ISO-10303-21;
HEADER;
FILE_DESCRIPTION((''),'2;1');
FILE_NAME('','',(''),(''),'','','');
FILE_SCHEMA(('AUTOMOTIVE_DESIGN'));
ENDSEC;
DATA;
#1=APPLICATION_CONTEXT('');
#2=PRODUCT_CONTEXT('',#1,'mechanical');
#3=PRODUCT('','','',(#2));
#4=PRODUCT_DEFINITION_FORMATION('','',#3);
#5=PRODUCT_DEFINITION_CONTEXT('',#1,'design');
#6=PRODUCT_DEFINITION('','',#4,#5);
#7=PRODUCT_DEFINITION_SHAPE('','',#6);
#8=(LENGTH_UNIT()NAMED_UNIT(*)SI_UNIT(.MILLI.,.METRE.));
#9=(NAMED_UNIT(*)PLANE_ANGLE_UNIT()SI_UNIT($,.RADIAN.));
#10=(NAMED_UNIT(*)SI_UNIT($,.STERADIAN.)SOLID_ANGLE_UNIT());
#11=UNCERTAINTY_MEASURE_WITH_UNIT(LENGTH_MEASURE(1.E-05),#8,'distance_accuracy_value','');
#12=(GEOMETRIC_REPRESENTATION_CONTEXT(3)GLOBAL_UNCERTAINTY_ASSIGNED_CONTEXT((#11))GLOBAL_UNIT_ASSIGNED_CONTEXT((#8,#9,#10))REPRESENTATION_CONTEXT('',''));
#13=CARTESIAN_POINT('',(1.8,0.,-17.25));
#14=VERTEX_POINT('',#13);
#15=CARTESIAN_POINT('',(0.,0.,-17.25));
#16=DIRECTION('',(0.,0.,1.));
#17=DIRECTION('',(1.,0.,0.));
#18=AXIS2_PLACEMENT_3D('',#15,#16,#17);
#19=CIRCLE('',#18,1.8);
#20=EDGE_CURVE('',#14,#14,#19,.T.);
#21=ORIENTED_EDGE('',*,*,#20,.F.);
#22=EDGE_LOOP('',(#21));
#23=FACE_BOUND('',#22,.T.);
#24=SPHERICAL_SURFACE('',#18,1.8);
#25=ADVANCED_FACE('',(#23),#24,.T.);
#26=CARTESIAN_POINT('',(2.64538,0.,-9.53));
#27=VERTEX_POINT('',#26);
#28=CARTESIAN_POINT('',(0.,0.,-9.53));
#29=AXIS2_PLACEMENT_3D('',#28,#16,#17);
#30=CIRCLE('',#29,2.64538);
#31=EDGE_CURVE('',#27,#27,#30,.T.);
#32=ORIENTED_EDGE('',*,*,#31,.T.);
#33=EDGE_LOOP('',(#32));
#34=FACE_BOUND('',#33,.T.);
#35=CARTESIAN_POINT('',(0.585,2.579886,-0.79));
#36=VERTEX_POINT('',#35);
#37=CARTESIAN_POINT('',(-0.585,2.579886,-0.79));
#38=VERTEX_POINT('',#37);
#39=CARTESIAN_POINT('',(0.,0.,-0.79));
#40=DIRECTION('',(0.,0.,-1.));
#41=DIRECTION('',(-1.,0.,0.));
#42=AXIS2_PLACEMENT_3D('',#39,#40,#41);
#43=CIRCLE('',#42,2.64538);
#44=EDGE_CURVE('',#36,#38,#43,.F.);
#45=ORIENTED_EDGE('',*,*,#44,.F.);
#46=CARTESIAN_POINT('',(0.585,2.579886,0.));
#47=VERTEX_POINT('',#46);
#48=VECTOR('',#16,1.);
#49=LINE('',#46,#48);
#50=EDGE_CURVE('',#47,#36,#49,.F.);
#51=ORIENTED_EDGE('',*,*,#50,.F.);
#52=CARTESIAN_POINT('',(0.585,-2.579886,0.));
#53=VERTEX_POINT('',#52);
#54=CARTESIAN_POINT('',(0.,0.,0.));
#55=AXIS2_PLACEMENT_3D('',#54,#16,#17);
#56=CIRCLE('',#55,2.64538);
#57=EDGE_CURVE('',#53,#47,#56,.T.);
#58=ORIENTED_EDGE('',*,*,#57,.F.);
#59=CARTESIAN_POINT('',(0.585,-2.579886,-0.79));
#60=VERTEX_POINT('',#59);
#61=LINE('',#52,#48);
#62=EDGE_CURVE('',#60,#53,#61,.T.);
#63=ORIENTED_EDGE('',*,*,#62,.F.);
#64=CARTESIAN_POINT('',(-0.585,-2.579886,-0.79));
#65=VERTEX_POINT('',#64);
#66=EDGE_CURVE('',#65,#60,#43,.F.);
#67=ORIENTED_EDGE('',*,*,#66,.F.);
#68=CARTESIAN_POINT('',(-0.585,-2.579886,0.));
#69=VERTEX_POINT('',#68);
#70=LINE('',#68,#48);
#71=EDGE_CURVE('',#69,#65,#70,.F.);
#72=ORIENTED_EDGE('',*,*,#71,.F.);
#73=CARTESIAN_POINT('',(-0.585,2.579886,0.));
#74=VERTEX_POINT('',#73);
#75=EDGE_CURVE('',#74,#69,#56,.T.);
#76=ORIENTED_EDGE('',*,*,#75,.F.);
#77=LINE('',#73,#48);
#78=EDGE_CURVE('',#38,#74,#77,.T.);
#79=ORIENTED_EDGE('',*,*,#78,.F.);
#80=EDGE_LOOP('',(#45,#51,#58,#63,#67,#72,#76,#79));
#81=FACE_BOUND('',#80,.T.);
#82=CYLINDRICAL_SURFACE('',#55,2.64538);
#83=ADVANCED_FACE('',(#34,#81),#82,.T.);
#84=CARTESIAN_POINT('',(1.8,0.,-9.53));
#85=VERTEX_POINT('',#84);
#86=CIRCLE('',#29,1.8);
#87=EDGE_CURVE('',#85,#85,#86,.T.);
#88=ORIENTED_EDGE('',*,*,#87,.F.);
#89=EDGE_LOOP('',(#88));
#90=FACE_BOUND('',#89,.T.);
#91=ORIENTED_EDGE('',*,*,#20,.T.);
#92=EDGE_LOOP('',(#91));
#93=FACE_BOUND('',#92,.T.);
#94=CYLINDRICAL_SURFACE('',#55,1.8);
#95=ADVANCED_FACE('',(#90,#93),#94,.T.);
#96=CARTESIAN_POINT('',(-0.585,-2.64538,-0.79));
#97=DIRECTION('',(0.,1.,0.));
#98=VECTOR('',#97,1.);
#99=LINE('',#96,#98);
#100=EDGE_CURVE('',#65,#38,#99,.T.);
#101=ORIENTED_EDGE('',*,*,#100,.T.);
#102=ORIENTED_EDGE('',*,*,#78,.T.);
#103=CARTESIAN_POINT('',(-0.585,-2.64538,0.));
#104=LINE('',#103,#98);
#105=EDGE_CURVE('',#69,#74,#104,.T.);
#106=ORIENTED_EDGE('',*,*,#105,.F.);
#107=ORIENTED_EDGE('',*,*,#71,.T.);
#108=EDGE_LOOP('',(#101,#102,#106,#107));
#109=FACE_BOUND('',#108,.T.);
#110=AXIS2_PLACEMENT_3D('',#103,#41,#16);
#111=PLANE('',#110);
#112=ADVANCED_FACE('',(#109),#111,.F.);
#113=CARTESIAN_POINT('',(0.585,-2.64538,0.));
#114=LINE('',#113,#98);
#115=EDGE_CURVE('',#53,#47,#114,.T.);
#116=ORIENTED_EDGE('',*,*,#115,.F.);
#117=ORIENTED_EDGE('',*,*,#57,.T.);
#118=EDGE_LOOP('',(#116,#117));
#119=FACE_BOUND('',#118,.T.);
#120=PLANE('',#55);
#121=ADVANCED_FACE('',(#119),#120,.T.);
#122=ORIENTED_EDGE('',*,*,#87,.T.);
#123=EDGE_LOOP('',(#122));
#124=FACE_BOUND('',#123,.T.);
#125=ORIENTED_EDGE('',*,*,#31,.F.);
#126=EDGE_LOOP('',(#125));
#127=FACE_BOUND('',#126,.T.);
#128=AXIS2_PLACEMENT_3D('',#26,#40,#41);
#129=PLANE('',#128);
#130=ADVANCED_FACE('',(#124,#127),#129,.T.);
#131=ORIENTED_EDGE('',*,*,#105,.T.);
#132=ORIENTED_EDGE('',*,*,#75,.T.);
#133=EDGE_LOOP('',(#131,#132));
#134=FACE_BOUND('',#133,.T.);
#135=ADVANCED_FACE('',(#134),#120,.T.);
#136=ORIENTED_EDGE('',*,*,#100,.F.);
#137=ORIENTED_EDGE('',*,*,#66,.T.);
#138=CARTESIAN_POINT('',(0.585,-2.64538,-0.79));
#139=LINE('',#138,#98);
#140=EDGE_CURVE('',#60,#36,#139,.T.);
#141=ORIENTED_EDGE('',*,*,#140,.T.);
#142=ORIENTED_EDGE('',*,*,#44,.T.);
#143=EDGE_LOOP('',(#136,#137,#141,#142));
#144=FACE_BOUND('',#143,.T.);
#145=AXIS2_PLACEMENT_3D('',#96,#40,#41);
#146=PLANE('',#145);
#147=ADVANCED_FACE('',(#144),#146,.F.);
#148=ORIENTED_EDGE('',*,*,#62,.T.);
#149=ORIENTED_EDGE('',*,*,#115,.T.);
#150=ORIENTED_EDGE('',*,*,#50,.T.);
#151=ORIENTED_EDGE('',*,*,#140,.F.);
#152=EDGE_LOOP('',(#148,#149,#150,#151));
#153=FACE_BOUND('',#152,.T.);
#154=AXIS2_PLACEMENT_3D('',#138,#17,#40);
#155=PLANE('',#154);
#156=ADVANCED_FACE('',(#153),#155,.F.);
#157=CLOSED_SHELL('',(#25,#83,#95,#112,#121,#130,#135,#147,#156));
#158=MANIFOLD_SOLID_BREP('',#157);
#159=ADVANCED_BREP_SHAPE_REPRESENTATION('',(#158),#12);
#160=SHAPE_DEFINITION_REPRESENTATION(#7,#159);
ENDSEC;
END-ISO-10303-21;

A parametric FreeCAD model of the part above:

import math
import FreeCAD as App
import Part
import Sketcher
Q = App.Units.Quantity

doc = App.newDocument("Part")
params = doc.addObject("Spreadsheet::Sheet", "Params")
for row, (alias, value) in enumerate([
    ("sketch1_radius", "1.8 mm"),
    ("sketch1_height", "9.53 mm"),
    ("sketch1_height2", "7.72 mm"),
    ("revolution_angle", "360 deg"),
    ("sketch2_width", "1.17 mm"),
    ("sketch2_height", "0.79 mm"),
], start=1):
    params.set(f"A{row}", alias)
    params.set(f"B{row}", "=" + value)
    params.setAlias(f"B{row}", alias)

body = doc.addObject("PartDesign::Body", "Body")

# Sketch on XZ plane
sketch1 = body.newObject("Sketcher::SketchObject", "Sketch")
sketch1.AttachmentSupport = (doc.getObject("XZ_Plane"), [""])
sketch1.MapMode = "FlatFace"
sketch1.addGeometry([
    Part.LineSegment(App.Vector(0, 0, 0), App.Vector(2.6, 0, 0)),  # 0
    Part.LineSegment(App.Vector(2.6, 0, 0), App.Vector(2.6, -9.5, 0)),  # 1
    Part.LineSegment(App.Vector(2.6, -9.5, 0), App.Vector(1.8, -9.5, 0)),  # 2
    Part.LineSegment(App.Vector(1.8, -9.5, 0), App.Vector(1.8, -17.2, 0)),  # 3
    Part.ArcOfCircle(Part.Circle(App.Vector(0, -17.2, 0), App.Vector(0, 0, 1), 1.8), math.radians(-90), math.radians(0)),  # 4
    Part.LineSegment(App.Vector(0, -19.1, 0), App.Vector(0, 0, 0)),  # 5
], False)
sketch1.addConstraint([
    Sketcher.Constraint("Coincident", 0, 2, 1, 1),
    Sketcher.Constraint("Coincident", 1, 2, 2, 1),
    Sketcher.Constraint("Coincident", 2, 2, 3, 1),
    Sketcher.Constraint("Tangent", 3, 2, 4, 2),
    Sketcher.Constraint("Coincident", 4, 1, 5, 1),
    Sketcher.Constraint("Coincident", 5, 2, 0, 1),
    Sketcher.Constraint("Horizontal", 0),
    Sketcher.Constraint("Vertical", 1),
    Sketcher.Constraint("Horizontal", 2),
    Sketcher.Constraint("Vertical", 3),
    Sketcher.Constraint("Vertical", 5),
    Sketcher.Constraint("Coincident", 5, 2, -1, 1),
    Sketcher.Constraint("PointOnObject", 4, 3, -2),
    Sketcher.Constraint("Radius", 4, Q("1.8 mm")),
    Sketcher.Constraint("DistanceY", 1, 2, 1, 1, Q("9.53 mm")),
    Sketcher.Constraint("DistanceY", 3, 2, 3, 1, Q("7.72 mm")),
    Sketcher.Constraint("DistanceX", 0, 1, 0, 2, Q("2.64538 mm")),
])
sketch1.setExpression("Constraints[13]", "Params.sketch1_radius")
sketch1.setExpression("Constraints[14]", "Params.sketch1_height")
sketch1.setExpression("Constraints[15]", "Params.sketch1_height2")
revolution = body.newObject("PartDesign::Revolution", "Revolution")
revolution.Profile = sketch1
revolution.ReferenceAxis = (sketch1, ["V_Axis"])
revolution.setExpression("Angle", "Params.revolution_angle")

# Sketch on XZ plane
sketch2 = body.newObject("Sketcher::SketchObject", "Sketch001")
sketch2.AttachmentSupport = (doc.getObject("XZ_Plane"), [""])
sketch2.MapMode = "FlatFace"
sketch2.addGeometry([
    Part.LineSegment(App.Vector(-0.6, -0.8, 0), App.Vector(-0.6, 0, 0)),
    Part.LineSegment(App.Vector(-0.6, 0, 0), App.Vector(0.6, 0, 0)),
    Part.LineSegment(App.Vector(0.6, 0, 0), App.Vector(0.6, -0.8, 0)),
    Part.LineSegment(App.Vector(0.6, -0.8, 0), App.Vector(-0.6, -0.8, 0)),
], False)
sketch2.addConstraint([
    Sketcher.Constraint("Coincident", 0, 2, 1, 1),
    Sketcher.Constraint("Coincident", 1, 2, 2, 1),
    Sketcher.Constraint("Coincident", 2, 2, 3, 1),
    Sketcher.Constraint("Coincident", 3, 2, 0, 1),
    Sketcher.Constraint("Vertical", 0),
    Sketcher.Constraint("Horizontal", 1),
    Sketcher.Constraint("Vertical", 2),
    Sketcher.Constraint("Horizontal", 3),
    Sketcher.Constraint("Symmetric", 0, 2, 1, 2, -1, 1),
    Sketcher.Constraint("DistanceX", 1, 1, 1, 2, Q("1.17 mm")),
    Sketcher.Constraint("DistanceY", 0, 1, 0, 2, Q("0.79 mm")),
])
sketch2.setExpression("Constraints[9]", "Params.sketch2_width")
sketch2.setExpression("Constraints[10]", "Params.sketch2_height")
pocket1 = body.newObject("PartDesign::Pocket", "Pocket")
pocket1.Profile = sketch2
pocket1.Type = "ThroughAll"
pocket1.Midplane = True

doc.recompute()
